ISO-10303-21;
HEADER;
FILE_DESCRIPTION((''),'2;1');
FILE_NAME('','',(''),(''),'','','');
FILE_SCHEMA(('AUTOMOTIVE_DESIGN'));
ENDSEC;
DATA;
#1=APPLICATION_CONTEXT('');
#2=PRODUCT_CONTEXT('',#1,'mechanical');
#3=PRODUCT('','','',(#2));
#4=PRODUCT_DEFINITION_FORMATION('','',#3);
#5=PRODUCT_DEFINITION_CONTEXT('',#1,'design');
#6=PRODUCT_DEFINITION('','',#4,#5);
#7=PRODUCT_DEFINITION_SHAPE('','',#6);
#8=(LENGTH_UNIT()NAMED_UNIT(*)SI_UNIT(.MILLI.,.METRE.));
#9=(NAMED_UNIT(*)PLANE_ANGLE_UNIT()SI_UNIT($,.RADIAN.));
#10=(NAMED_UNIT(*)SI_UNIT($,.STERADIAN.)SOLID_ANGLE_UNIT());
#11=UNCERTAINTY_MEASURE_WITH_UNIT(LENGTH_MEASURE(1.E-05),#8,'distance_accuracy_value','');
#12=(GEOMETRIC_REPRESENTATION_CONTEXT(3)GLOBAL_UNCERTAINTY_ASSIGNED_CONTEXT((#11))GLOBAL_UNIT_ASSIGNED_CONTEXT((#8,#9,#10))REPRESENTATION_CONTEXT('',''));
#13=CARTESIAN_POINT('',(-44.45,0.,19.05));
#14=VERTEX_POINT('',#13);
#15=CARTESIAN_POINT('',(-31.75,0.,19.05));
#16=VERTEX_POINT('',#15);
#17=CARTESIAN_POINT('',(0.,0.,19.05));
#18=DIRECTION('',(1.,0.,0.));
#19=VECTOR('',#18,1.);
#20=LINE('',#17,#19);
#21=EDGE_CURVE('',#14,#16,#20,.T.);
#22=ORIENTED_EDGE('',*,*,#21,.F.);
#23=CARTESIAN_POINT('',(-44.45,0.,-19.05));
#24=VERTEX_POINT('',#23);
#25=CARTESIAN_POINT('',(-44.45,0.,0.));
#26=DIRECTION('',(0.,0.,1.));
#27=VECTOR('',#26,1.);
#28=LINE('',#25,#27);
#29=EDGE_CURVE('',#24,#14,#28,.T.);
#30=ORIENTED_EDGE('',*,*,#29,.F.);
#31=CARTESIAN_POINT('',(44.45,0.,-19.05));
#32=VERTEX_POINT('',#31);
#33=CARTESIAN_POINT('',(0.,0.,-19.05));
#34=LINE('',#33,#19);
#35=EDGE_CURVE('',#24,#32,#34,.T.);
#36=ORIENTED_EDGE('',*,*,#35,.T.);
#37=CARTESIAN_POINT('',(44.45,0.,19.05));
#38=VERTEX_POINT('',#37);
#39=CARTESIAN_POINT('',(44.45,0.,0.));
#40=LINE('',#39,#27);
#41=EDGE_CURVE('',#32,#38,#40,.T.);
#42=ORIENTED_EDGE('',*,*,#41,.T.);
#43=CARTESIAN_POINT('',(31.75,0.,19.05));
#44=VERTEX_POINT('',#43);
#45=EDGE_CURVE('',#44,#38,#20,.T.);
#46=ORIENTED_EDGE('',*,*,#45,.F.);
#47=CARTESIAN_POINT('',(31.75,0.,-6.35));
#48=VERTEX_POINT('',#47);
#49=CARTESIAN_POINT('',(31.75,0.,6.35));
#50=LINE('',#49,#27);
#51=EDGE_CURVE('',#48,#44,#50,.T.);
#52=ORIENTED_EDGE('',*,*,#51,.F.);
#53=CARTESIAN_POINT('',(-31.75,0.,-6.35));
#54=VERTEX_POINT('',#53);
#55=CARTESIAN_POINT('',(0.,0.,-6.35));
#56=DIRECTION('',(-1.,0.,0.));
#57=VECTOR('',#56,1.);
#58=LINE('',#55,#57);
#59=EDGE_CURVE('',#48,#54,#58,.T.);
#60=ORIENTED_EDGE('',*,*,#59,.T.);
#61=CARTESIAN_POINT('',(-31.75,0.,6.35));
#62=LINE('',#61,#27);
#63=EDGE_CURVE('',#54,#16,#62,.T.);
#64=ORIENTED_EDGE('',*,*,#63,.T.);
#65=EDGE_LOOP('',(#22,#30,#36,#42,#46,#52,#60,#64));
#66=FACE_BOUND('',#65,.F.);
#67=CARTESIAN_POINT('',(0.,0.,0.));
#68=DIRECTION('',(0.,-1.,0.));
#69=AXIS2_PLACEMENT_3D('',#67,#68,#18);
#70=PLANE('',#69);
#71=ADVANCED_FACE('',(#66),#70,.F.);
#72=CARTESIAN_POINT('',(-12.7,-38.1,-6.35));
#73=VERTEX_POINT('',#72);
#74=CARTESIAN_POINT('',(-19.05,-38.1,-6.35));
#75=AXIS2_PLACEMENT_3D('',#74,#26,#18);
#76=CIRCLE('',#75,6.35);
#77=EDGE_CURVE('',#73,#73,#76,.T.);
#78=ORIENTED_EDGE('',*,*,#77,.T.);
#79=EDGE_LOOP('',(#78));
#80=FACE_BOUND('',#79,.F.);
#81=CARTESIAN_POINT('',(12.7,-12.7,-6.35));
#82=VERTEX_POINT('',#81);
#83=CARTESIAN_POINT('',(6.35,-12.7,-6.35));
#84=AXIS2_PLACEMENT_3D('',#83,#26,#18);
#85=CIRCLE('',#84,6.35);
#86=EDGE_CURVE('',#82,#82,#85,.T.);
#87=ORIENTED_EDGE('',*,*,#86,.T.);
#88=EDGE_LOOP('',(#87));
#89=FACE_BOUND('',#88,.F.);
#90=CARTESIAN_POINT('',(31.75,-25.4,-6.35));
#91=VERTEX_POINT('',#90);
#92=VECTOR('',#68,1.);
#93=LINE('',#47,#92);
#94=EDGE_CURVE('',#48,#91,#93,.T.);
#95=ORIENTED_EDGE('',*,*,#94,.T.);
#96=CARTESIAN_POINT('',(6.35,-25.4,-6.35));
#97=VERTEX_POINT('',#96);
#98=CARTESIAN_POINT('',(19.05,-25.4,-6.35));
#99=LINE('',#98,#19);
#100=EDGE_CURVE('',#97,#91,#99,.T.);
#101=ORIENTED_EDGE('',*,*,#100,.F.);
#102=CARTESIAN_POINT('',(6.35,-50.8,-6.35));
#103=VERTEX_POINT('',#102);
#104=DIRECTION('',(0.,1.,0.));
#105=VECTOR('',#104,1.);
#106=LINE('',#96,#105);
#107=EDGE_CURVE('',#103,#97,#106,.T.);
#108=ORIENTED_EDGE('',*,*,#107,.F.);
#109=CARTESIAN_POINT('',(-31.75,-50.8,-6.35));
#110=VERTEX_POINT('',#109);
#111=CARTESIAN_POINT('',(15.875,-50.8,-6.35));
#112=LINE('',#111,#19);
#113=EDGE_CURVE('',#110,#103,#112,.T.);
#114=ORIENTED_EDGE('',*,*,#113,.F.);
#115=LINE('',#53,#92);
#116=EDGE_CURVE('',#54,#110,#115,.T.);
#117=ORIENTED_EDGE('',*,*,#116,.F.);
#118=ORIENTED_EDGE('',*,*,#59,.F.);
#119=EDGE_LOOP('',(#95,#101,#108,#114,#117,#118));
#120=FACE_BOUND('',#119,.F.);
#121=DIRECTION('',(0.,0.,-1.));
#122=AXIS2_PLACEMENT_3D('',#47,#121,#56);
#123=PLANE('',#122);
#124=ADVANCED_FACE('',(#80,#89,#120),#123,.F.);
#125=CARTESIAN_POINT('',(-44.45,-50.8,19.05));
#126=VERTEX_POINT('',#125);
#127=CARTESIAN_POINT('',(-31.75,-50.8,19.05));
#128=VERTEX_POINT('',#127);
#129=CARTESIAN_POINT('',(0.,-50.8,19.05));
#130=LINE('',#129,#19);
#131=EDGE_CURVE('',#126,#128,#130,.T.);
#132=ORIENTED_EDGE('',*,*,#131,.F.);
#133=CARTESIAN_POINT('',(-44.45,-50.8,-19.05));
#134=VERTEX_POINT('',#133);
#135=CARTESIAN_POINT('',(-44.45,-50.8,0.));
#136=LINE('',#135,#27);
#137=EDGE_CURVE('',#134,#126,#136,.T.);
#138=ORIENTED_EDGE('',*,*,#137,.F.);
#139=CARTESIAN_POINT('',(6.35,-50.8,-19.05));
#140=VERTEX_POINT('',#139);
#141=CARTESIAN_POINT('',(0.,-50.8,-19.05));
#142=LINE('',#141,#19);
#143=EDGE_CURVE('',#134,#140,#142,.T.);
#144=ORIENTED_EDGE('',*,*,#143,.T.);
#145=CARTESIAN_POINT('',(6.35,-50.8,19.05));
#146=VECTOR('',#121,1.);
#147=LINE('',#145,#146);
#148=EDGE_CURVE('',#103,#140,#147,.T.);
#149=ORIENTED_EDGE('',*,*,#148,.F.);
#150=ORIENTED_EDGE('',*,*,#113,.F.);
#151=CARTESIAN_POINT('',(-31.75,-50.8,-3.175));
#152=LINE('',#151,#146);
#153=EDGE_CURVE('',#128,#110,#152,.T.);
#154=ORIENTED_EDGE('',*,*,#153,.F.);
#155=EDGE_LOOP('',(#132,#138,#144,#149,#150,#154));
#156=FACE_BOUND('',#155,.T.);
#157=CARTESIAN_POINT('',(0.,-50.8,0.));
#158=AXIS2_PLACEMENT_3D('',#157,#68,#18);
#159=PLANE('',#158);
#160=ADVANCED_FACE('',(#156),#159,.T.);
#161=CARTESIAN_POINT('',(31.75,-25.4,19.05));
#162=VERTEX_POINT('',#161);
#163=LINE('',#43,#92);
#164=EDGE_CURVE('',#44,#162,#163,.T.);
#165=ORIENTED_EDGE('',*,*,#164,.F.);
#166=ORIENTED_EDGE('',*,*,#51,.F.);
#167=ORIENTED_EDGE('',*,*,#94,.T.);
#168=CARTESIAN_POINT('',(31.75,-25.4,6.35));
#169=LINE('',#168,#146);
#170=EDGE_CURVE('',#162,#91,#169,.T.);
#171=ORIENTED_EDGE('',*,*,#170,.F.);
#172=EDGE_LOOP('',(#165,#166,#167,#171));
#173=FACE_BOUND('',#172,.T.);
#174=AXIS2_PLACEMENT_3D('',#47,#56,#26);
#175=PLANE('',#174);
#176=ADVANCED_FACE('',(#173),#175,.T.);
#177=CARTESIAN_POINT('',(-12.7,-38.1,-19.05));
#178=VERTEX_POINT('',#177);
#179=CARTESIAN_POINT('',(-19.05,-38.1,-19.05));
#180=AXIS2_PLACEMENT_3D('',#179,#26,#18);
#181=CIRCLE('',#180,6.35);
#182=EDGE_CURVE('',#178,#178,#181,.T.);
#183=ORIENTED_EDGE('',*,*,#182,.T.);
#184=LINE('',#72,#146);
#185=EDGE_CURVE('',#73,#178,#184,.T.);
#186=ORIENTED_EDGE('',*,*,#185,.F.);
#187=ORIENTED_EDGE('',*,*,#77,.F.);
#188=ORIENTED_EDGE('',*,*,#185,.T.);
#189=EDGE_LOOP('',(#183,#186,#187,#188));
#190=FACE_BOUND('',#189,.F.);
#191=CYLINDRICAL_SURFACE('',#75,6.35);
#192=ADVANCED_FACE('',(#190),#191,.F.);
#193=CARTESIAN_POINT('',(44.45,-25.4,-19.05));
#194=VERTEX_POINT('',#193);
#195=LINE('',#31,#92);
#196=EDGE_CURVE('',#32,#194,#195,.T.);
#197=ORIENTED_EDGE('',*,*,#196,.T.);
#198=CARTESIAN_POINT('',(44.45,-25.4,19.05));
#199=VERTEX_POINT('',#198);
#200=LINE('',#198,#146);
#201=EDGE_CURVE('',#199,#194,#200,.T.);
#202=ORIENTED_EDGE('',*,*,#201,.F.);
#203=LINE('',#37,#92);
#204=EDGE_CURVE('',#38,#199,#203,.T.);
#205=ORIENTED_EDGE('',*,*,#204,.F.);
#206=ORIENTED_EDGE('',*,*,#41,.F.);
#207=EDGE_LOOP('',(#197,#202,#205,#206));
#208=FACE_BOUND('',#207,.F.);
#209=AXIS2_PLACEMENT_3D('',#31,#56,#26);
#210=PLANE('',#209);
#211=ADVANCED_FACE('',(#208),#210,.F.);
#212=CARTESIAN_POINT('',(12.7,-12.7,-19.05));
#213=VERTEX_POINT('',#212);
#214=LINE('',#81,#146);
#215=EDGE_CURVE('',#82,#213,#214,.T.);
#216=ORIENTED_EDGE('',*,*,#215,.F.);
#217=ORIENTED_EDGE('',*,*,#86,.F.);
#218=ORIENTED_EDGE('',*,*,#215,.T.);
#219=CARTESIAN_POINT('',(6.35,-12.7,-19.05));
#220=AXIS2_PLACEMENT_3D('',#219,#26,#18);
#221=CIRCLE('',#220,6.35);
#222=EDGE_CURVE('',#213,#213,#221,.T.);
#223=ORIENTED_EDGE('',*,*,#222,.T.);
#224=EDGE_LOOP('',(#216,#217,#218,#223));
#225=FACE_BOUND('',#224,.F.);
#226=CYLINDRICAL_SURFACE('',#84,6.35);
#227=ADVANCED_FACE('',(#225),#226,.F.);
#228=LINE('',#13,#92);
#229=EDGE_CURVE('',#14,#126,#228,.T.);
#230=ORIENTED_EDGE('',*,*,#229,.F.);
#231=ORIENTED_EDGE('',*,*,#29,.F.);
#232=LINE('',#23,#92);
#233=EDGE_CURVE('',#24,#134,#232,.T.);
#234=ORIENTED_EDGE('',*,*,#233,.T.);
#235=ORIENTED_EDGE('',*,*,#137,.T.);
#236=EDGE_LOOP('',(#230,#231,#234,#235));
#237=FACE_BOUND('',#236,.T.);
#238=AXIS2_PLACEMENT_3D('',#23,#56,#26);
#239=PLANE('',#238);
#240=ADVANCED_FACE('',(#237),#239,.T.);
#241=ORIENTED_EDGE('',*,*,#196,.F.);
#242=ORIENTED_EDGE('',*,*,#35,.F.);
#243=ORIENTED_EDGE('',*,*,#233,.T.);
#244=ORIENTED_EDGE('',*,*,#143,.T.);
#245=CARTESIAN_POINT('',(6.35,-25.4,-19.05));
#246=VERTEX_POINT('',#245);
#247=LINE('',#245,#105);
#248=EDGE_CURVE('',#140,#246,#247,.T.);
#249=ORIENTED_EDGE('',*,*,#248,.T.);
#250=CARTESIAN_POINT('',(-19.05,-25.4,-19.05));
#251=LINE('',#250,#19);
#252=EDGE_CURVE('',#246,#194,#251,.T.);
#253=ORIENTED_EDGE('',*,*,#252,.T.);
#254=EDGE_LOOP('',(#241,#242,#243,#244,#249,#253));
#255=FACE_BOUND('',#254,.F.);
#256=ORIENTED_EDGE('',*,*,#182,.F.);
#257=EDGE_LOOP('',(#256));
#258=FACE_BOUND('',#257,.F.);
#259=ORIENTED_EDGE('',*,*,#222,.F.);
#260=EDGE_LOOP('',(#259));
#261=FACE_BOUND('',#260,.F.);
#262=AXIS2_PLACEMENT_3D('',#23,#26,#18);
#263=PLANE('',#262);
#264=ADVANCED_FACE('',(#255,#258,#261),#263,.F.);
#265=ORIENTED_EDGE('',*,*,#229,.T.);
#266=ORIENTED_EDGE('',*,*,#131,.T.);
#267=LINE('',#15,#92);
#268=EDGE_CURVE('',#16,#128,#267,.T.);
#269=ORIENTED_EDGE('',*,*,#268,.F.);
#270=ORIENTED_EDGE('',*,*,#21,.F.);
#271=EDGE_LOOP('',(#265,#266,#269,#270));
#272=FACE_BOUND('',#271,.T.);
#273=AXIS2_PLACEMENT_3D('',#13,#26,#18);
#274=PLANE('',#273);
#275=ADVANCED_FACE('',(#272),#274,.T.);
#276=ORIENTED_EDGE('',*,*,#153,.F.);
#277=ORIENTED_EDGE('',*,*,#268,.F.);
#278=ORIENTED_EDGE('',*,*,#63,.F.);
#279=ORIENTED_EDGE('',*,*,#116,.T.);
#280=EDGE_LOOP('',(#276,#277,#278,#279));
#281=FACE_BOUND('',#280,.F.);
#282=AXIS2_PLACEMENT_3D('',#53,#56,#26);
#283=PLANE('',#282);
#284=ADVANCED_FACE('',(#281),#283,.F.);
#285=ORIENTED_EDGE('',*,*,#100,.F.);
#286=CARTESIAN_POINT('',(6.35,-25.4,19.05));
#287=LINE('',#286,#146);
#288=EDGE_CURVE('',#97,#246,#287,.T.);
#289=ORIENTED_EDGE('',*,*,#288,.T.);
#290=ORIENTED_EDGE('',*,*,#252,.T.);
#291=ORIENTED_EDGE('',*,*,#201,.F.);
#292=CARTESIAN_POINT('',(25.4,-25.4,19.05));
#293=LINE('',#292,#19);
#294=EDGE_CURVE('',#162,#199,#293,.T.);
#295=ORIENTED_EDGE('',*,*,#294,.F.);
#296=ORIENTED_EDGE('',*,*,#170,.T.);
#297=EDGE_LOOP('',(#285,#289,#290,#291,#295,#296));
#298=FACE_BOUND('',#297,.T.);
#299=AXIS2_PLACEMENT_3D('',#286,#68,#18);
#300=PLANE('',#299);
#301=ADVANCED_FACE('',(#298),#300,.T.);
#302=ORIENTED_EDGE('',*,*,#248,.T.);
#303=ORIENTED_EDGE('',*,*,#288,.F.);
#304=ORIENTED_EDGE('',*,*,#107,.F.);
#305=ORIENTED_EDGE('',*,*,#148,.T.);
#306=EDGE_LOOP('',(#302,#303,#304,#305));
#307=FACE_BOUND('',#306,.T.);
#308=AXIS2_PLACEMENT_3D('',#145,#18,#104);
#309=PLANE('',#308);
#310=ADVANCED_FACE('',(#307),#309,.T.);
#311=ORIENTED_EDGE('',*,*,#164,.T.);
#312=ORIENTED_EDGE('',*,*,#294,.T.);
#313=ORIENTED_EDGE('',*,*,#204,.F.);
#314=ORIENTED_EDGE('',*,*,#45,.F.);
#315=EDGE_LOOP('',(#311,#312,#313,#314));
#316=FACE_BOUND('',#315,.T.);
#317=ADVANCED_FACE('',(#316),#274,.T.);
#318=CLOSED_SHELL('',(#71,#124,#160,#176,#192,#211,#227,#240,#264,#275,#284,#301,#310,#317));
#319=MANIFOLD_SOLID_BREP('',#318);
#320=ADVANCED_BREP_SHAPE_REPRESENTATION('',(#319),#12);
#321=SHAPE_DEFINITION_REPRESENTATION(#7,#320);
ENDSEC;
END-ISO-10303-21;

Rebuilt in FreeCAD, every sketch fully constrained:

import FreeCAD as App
import Part
import Sketcher
from FreeCAD import Vector
Q = App.Units.Quantity


def add_polygon(sketch, points):
    """Adds a closed chain of lines whose ends are joined by coincident constraints."""
    first, n = sketch.GeometryCount, len(points)
    for a, b in zip(points, points[1:] + points[:1]):
        sketch.addGeometry(Part.LineSegment(App.Vector(*a, 0), App.Vector(*b, 0)), False)
    for i in range(n):
        sketch.addConstraint(Sketcher.Constraint("Coincident", first + i, 2, first + (i + 1) % n, 1))

doc = App.newDocument("Part")
body = doc.addObject("PartDesign::Body", "Body")

sketch1 = doc.addObject("Sketcher::SketchObject", "Sketch")
body.addObject(sketch1)
sketch1.AttachmentSupport = (doc.XZ_Plane, [""])
sketch1.MapMode = "FlatFace"
add_polygon(sketch1, [(-44, 19), (-44, -19), (44, -19), (44, 19)])
sketch1.addConstraint(Sketcher.Constraint("Vertical", 0))
sketch1.addConstraint(Sketcher.Constraint("Horizontal", 1))
sketch1.addConstraint(Sketcher.Constraint("Vertical", 2))
sketch1.addConstraint(Sketcher.Constraint("Horizontal", 3))
sketch1.addConstraint(Sketcher.Constraint("Symmetric", 0, 2, 2, 2, -1, 1))
sketch1.addConstraint(Sketcher.Constraint("DistanceX", 1, 1, 1, 2, Q("3.5 in")))
sketch1.addConstraint(Sketcher.Constraint("DistanceY", 0, 2, 0, 1, Q("1.5 in")))
pad1 = doc.addObject("PartDesign::Pad", "Pad")
body.addObject(pad1)
pad1.Profile = sketch1
pad1.Length = Q("2 in")

sketch2 = doc.addObject("Sketcher::SketchObject", "Sketch001")
body.addObject(sketch2)
sketch2.AttachmentSupport = (doc.XY_Plane, [""])
sketch2.MapMode = "FlatFace"
sketch2.AttachmentOffset = App.Placement(Vector(0, 0, 0.75 * 25.4), App.Rotation())
add_polygon(sketch2, [(6, -25), (6, -51), (44, -51), (44, -25)])
sketch2.addConstraint(Sketcher.Constraint("Vertical", 0))
sketch2.addConstraint(Sketcher.Constraint("Horizontal", 1))
sketch2.addConstraint(Sketcher.Constraint("Vertical", 2))
sketch2.addConstraint(Sketcher.Constraint("Horizontal", 3))
sketch2.addConstraint(Sketcher.Constraint("DistanceY", 0, 2, 0, 1, Q("1 in")))
sketch2.addConstraint(Sketcher.Constraint("DistanceX", 1, 1, 1, 2, Q("1.5 in")))
sketch2.addConstraint(Sketcher.Constraint("DistanceY", 0, 2, -1, 1, Q("2 in")))
sketch2.addConstraint(Sketcher.Constraint("DistanceX", -1, 1, 0, 2, Q("0.25 in")))
pocket1 = doc.addObject("PartDesign::Pocket", "Pocket")
body.addObject(pocket1)
pocket1.Profile = sketch2
pocket1.Length = Q("1.96 in")

sketch3 = doc.addObject("Sketcher::SketchObject", "Sketch002")
body.addObject(sketch3)
sketch3.AttachmentSupport = (doc.XZ_Plane, [""])
sketch3.MapMode = "FlatFace"
add_polygon(sketch3, [(32, 19), (32, -6), (-32, -6), (-32, 19)])
sketch3.addConstraint(Sketcher.Constraint("Vertical", 0))
sketch3.addConstraint(Sketcher.Constraint("Horizontal", 1))
sketch3.addConstraint(Sketcher.Constraint("Vertical", 2))
sketch3.addConstraint(Sketcher.Constraint("Horizontal", 3))
sketch3.addConstraint(Sketcher.Constraint("DistanceY", 0, 2, 0, 1, Q("1 in")))
sketch3.addConstraint(Sketcher.Constraint("DistanceX", 1, 2, 1, 1, Q("2.5 in")))
sketch3.addConstraint(Sketcher.Constraint("DistanceX", -1, 1, 0, 2, Q("1.25 in")))
sketch3.addConstraint(Sketcher.Constraint("DistanceY", 0, 2, -1, 1, Q("0.25 in")))
pocket2 = doc.addObject("PartDesign::Pocket", "Pocket001")
body.addObject(pocket2)
pocket2.Profile = sketch3
pocket2.Length = Q("2.81 in")
pocket2.Reversed = True

sketch4 = doc.addObject("Sketcher::SketchObject", "Sketch003")
body.addObject(sketch4)
sketch4.AttachmentSupport = (doc.XY_Plane, [""])
sketch4.MapMode = "FlatFace"
sketch4.AttachmentOffset = App.Placement(Vector(0, 0, -0.25 * 25.4), App.Rotation())
sketch4.addGeometry(Part.Circle(Vector(-19, -38, 0), Vector(0, 0, 1), 6), False)
sketch4.addGeometry(Part.Circle(Vector(6, -13, 0), Vector(0, 0, 1), 6), False)
sketch4.addConstraint(Sketcher.Constraint("Equal", 0, 1))
sketch4.addConstraint(Sketcher.Constraint("Diameter", 0, Q("0.5 in")))
sketch4.addConstraint(Sketcher.Constraint("DistanceX", 0, 3, 1, 3, Q("1 in")))
sketch4.addConstraint(Sketcher.Constraint("DistanceY", 0, 3, 1, 3, Q("1 in")))
sketch4.addConstraint(Sketcher.Constraint("DistanceY", 0, 3, -1, 1, Q("1.5 in")))
sketch4.addConstraint(Sketcher.Constraint("DistanceX", 0, 3, -1, 1, Q("0.75 in")))
pocket3 = doc.addObject("PartDesign::Pocket", "Pocket002")
body.addObject(pocket3)
pocket3.Profile = sketch4
pocket3.Length = Q("1 in")

doc.recompute()
